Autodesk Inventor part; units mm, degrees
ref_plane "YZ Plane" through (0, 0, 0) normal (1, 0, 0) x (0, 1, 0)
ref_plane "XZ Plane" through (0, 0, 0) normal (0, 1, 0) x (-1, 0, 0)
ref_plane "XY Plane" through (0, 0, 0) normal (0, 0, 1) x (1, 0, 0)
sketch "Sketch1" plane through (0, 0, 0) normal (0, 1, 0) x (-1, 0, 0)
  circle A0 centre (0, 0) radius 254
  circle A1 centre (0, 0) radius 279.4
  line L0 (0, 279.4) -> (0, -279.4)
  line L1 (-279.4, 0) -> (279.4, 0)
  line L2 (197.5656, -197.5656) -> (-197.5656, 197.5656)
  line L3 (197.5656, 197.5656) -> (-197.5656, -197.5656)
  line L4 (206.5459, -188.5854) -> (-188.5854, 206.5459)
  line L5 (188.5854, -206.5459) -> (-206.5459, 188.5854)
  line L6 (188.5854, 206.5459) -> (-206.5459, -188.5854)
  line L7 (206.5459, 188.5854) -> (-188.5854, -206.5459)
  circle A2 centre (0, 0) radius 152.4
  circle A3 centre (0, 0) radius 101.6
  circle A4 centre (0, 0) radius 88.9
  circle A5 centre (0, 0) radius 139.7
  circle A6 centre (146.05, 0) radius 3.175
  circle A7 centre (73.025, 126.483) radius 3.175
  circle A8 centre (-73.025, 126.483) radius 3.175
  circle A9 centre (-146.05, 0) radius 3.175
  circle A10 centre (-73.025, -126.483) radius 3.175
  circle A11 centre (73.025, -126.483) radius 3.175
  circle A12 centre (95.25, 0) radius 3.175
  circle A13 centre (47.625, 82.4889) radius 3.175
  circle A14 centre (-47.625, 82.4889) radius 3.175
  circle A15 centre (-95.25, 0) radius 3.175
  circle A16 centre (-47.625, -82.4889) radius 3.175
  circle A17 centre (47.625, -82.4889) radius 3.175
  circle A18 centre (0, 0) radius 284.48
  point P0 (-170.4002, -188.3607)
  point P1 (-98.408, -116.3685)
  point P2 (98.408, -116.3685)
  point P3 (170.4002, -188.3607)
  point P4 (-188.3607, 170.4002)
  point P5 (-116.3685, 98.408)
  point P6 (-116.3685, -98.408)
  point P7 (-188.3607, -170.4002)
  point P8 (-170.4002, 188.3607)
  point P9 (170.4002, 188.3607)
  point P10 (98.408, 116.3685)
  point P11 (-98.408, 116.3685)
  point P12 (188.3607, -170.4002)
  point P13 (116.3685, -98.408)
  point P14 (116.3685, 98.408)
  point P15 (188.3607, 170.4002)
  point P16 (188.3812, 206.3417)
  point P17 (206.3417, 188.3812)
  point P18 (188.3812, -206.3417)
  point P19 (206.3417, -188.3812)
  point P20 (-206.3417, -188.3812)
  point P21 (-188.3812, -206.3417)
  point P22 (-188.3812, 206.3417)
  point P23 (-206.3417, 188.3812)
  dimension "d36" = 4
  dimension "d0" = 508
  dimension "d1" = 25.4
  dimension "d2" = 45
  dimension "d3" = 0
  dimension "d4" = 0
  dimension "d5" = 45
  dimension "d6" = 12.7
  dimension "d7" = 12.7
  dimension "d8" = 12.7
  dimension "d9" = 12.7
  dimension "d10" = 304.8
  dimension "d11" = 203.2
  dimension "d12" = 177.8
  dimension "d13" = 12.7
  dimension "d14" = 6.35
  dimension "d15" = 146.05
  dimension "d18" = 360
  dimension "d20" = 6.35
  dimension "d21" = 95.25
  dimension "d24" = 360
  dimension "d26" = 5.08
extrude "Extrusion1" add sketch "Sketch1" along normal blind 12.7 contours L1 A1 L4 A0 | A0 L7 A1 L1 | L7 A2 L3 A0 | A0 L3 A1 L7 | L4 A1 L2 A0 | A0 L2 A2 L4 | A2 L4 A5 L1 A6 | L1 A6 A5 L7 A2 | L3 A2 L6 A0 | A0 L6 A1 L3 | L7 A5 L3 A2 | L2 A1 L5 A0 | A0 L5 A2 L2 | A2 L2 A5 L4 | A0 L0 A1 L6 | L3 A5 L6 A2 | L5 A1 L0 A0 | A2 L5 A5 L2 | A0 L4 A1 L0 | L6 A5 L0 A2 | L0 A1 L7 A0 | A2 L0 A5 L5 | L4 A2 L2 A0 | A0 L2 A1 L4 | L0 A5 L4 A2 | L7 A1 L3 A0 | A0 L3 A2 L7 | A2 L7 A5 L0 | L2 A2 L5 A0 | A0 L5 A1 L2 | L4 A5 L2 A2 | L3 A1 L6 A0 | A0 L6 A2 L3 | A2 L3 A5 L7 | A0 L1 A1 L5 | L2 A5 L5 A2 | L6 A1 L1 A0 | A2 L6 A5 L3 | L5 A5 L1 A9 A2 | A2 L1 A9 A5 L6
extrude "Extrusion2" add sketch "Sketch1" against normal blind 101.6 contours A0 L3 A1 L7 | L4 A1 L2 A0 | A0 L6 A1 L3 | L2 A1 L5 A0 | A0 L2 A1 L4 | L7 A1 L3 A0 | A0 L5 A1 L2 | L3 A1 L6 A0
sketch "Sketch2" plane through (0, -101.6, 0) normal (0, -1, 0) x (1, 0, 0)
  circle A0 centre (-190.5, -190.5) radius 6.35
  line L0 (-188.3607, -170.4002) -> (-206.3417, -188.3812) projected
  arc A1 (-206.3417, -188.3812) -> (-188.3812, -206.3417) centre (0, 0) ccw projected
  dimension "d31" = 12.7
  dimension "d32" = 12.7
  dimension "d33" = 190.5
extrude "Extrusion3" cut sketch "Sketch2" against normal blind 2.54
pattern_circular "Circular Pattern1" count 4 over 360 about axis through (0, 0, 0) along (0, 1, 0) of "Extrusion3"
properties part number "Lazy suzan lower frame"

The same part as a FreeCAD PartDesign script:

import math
import FreeCAD as App
import Part
import Sketcher
from FreeCAD import Vector
Q = App.Units.Quantity

doc = App.newDocument("Part")
body = doc.addObject("PartDesign::Body", "Body")

sketch1 = body.newObject("Sketcher::SketchObject", "Sketch")
sketch1.AttachmentSupport = (doc.getObject("XZ_Plane"), [""])
sketch1.MapMode = "FlatFace"
sketch1.addGeometry(Part.Circle(Vector(0, 0, 0), Vector(0, 0, 1), 279.4), False)
sketch1.addGeometry(Part.LineSegment(Vector(-188.4, -170.4, 0), Vector(-116.4, -98.4, 0)), False)
sketch1.addGeometry(Part.ArcOfCircle(Part.Circle(Vector(0, 0, 0), Vector(0, 0, 1), 152.4), math.radians(140), math.radians(220)), False)
sketch1.addGeometry(Part.LineSegment(Vector(-116.4, 98.4, 0), Vector(-188.4, 170.4, 0)), False)
sketch1.addGeometry(Part.ArcOfCircle(Part.Circle(Vector(0, 0, 0), Vector(0, 0, 1), 254), math.radians(138), math.radians(222)), False)
sketch1.addGeometry(Part.LineSegment(Vector(-98.4, -116.4, 0), Vector(-170.4, -188.4, 0)), False)
sketch1.addGeometry(Part.ArcOfCircle(Part.Circle(Vector(0, 0, 0), Vector(0, 0, 1), 254), math.radians(-132), math.radians(-48)), False)
sketch1.addGeometry(Part.LineSegment(Vector(170.4, -188.4, 0), Vector(98.4, -116.4, 0)), False)
sketch1.addGeometry(Part.ArcOfCircle(Part.Circle(Vector(0, 0, 0), Vector(0, 0, 1), 152.4), math.radians(-130), math.radians(-50)), False)
sketch1.addGeometry(Part.Circle(Vector(0, 0, 0), Vector(0, 0, 1), 139.7), False)
sketch1.addGeometry(Part.LineSegment(Vector(-170.4, 188.4, 0), Vector(-98.4, 116.4, 0)), False)
sketch1.addGeometry(Part.ArcOfCircle(Part.Circle(Vector(0, 0, 0), Vector(0, 0, 1), 152.4), math.radians(50), math.radians(130)), False)
sketch1.addGeometry(Part.LineSegment(Vector(98.4, 116.4, 0), Vector(170.4, 188.4, 0)), False)
sketch1.addGeometry(Part.ArcOfCircle(Part.Circle(Vector(0, 0, 0), Vector(0, 0, 1), 254), math.radians(48), math.radians(132)), False)
sketch1.addGeometry(Part.Circle(Vector(-146.1, 0, 0), Vector(0, 0, 1), 3.2), False)
sketch1.addGeometry(Part.Circle(Vector(-73, -126.5, 0), Vector(0, 0, 1), 3.2), False)
sketch1.addGeometry(Part.Circle(Vector(-73, 126.5, 0), Vector(0, 0, 1), 3.2), False)
sketch1.addGeometry(Part.Circle(Vector(73, -126.5, 0), Vector(0, 0, 1), 3.2), False)
sketch1.addGeometry(Part.Circle(Vector(73, 126.5, 0), Vector(0, 0, 1), 3.2), False)
sketch1.addGeometry(Part.LineSegment(Vector(116.4, -98.4, 0), Vector(188.4, -170.4, 0)), False)
sketch1.addGeometry(Part.ArcOfCircle(Part.Circle(Vector(0, 0, 0), Vector(0, 0, 1), 254), math.radians(-42), math.radians(42)), False)
sketch1.addGeometry(Part.LineSegment(Vector(188.4, 170.4, 0), Vector(116.4, 98.4, 0)), False)
sketch1.addGeometry(Part.ArcOfCircle(Part.Circle(Vector(0, 0, 0), Vector(0, 0, 1), 152.4), math.radians(-40), math.radians(40)), False)
sketch1.addGeometry(Part.Circle(Vector(146.1, 0, 0), Vector(0, 0, 1), 3.2), False)
sketch1.addConstraint(Sketcher.Constraint("Coincident", 1, 2, 2, 2))
sketch1.addConstraint(Sketcher.Constraint("Coincident", 2, 1, 3, 1))
sketch1.addConstraint(Sketcher.Constraint("Coincident", 3, 2, 4, 1))
sketch1.addConstraint(Sketcher.Constraint("Coincident", 4, 2, 1, 1))
sketch1.addConstraint(Sketcher.Constraint("Coincident", 5, 2, 6, 1))
sketch1.addConstraint(Sketcher.Constraint("Coincident", 6, 2, 7, 1))
sketch1.addConstraint(Sketcher.Constraint("Coincident", 7, 2, 8, 2))
sketch1.addConstraint(Sketcher.Constraint("Coincident", 8, 1, 5, 1))
sketch1.addConstraint(Sketcher.Constraint("Coincident", 10, 2, 11, 2))
sketch1.addConstraint(Sketcher.Constraint("Coincident", 11, 1, 12, 1))
sketch1.addConstraint(Sketcher.Constraint("Coincident", 12, 2, 13, 1))
sketch1.addConstraint(Sketcher.Constraint("Coincident", 13, 2, 10, 1))
sketch1.addConstraint(Sketcher.Constraint("Coincident", 19, 2, 20, 1))
sketch1.addConstraint(Sketcher.Constraint("Coincident", 20, 2, 21, 1))
sketch1.addConstraint(Sketcher.Constraint("Coincident", 21, 2, 22, 2))
sketch1.addConstraint(Sketcher.Constraint("Coincident", 22, 1, 19, 1))
sketch1.addConstraint(Sketcher.Constraint("Coincident", 0, 3, -1, 1))
sketch1.addConstraint(Sketcher.Constraint("Coincident", 2, 3, -1, 1))
sketch1.addConstraint(Sketcher.Constraint("Coincident", 4, 3, -1, 1))
sketch1.addConstraint(Sketcher.Constraint("Coincident", 6, 3, -1, 1))
sketch1.addConstraint(Sketcher.Constraint("Coincident", 8, 3, -1, 1))
sketch1.addConstraint(Sketcher.Constraint("Coincident", 9, 3, -1, 1))
sketch1.addConstraint(Sketcher.Constraint("Coincident", 11, 3, -1, 1))
sketch1.addConstraint(Sketcher.Constraint("Coincident", 13, 3, -1, 1))
sketch1.addConstraint(Sketcher.Constraint("Coincident", 20, 3, -1, 1))
sketch1.addConstraint(Sketcher.Constraint("Coincident", 22, 3, -1, 1))
sketch1.addConstraint(Sketcher.Constraint("Equal", 4, 6))
sketch1.addConstraint(Sketcher.Constraint("Equal", 2, 8))
sketch1.addConstraint(Sketcher.Constraint("Equal", 8, 11))
sketch1.addConstraint(Sketcher.Constraint("Equal", 6, 13))
sketch1.addConstraint(Sketcher.Constraint("Equal", 14, 15))
sketch1.addConstraint(Sketcher.Constraint("Equal", 15, 16))
sketch1.addConstraint(Sketcher.Constraint("Equal", 16, 17))
sketch1.addConstraint(Sketcher.Constraint("Equal", 17, 18))
sketch1.addConstraint(Sketcher.Constraint("Equal", 13, 20))
sketch1.addConstraint(Sketcher.Constraint("Equal", 11, 22))
sketch1.addConstraint(Sketcher.Constraint("Equal", 18, 23))
sketch1.addConstraint(Sketcher.Constraint("Symmetric", 16, 3, 17, 3, -1, 1))
sketch1.addConstraint(Sketcher.Constraint("Symmetric", 15, 3, 18, 3, -1, 1))
sketch1.addConstraint(Sketcher.Constraint("Symmetric", 14, 3, 23, 3, -1, 1))
sketch1.addConstraint(Sketcher.Constraint("Symmetric", 15, 3, 17, 3, -2))
sketch1.addConstraint(Sketcher.Constraint("PointOnObject", 14, 3, -1))
sketch1.addConstraint(Sketcher.Constraint("Perpendicular", 1, 3))
sketch1.addConstraint(Sketcher.Constraint("Perpendicular", 3, 5))
sketch1.addConstraint(Sketcher.Constraint("Perpendicular", 5, 7))
sketch1.addConstraint(Sketcher.Constraint("Parallel", 7, 10))
sketch1.addConstraint(Sketcher.Constraint("Perpendicular", 10, 12))
sketch1.addConstraint(Sketcher.Constraint("Perpendicular", 12, 19))
sketch1.addConstraint(Sketcher.Constraint("Perpendicular", 19, 21))
sketch1.addConstraint(Sketcher.Constraint("Horizontal", 5, 2, 6, 2))
sketch1.addConstraint(Sketcher.Constraint("Horizontal", 7, 2, 8, 1))
sketch1.addConstraint(Sketcher.Constraint("Horizontal", 10, 2, 11, 1))
sketch1.addConstraint(Sketcher.Constraint("Horizontal", 4, 2, 19, 2))
sketch1.addConstraint(Sketcher.Constraint("Horizontal", 3, 2, 20, 2))
sketch1.addConstraint(Sketcher.Constraint("Vertical", 1, 2, 2, 1))
sketch1.addConstraint(Sketcher.Constraint("Vertical", 8, 1, 10, 2))
sketch1.addConstraint(Sketcher.Constraint("Equal", 3, 5))
sketch1.addConstraint(Sketcher.Constraint("Radius", 2, Q("6 in")))
sketch1.addConstraint(Sketcher.Constraint("Radius", 4, Q("10 in")))
sketch1.addConstraint(Sketcher.Constraint("Diameter", 14, Q("0.25 in")))
sketch1.addConstraint(Sketcher.Constraint("Diameter", 0, Q("22 in")))
sketch1.addConstraint(Sketcher.Constraint("Diameter", 9, Q("11 in")))
sketch1.addConstraint(Sketcher.Constraint("DistanceX", 14, 3, -1, 1, Q("5.75 in")))
sketch1.addConstraint(Sketcher.Constraint("DistanceX", 15, 3, -1, 1, Q("2.875 in")))
sketch1.addConstraint(Sketcher.Constraint("DistanceX", 4, 2, 5, 2, Q("0.7071 in")))
sketch1.addConstraint(Sketcher.Constraint("DistanceY", 17, 3, 7, 2, Q("0.3982 in")))
pad1 = body.newObject("PartDesign::Pad", "Pad")
pad1.Profile = sketch1
pad1.Length = Q("0.5 in")
pad1.Reversed = True

sketch2 = body.newObject("Sketcher::SketchObject", "Sketch001")
sketch2.AttachmentSupport = (doc.getObject("XZ_Plane"), [""])
sketch2.MapMode = "FlatFace"
sketch2.addGeometry(Part.LineSegment(Vector(-188, 170, 0), Vector(-206, 188, 0)), False)
sketch2.addGeometry(Part.ArcOfCircle(Part.Circle(Vector(0, 0, 0), Vector(0, 0, 1), 279), math.radians(132.39), math.radians(137.61)), False)
sketch2.addGeometry(Part.LineSegment(Vector(-188, 206, 0), Vector(-170, 188, 0)), False)
sketch2.addGeometry(Part.ArcOfCircle(Part.Circle(Vector(0, 0, 0), Vector(0, 0, 1), 254), math.radians(132.13), math.radians(137.87)), False)
sketch2.addGeometry(Part.LineSegment(Vector(-206, -188, 0), Vector(-188, -170, 0)), False)
sketch2.addGeometry(Part.ArcOfCircle(Part.Circle(Vector(0, 0, 0), Vector(0, 0, 1), 254), math.radians(-137.87), math.radians(-132.13)), False)
sketch2.addGeometry(Part.LineSegment(Vector(-170, -188, 0), Vector(-188, -206, 0)), False)
sketch2.addGeometry(Part.ArcOfCircle(Part.Circle(Vector(0, 0, 0), Vector(0, 0, 1), 279), math.radians(-137.61), math.radians(-132.39)), False)
sketch2.addGeometry(Part.LineSegment(Vector(170, 188, 0), Vector(188, 206, 0)), False)
sketch2.addGeometry(Part.ArcOfCircle(Part.Circle(Vector(0, 0, 0), Vector(0, 0, 1), 279), math.radians(42.39), math.radians(47.61)), False)
sketch2.addGeometry(Part.LineSegment(Vector(206, 188, 0), Vector(188, 170, 0)), False)
sketch2.addGeometry(Part.ArcOfCircle(Part.Circle(Vector(0, 0, 0), Vector(0, 0, 1), 254), math.radians(42.13), math.radians(47.87)), False)
sketch2.addGeometry(Part.LineSegment(Vector(188, -206, 0), Vector(170, -188, 0)), False)
sketch2.addGeometry(Part.ArcOfCircle(Part.Circle(Vector(0, 0, 0), Vector(0, 0, 1), 254), math.radians(-47.87), math.radians(-42.13)), False)
sketch2.addGeometry(Part.LineSegment(Vector(188, -170, 0), Vector(206, -188, 0)), False)
sketch2.addGeometry(Part.ArcOfCircle(Part.Circle(Vector(0, 0, 0), Vector(0, 0, 1), 279), math.radians(-47.61), math.radians(-42.39)), False)
sketch2.addConstraint(Sketcher.Constraint("Coincident", 0, 2, 1, 2))
sketch2.addConstraint(Sketcher.Constraint("Coincident", 1, 1, 2, 1))
sketch2.addConstraint(Sketcher.Constraint("Coincident", 2, 2, 3, 1))
sketch2.addConstraint(Sketcher.Constraint("Coincident", 3, 2, 0, 1))
sketch2.addConstraint(Sketcher.Constraint("Coincident", 4, 2, 5, 1))
sketch2.addConstraint(Sketcher.Constraint("Coincident", 5, 2, 6, 1))
sketch2.addConstraint(Sketcher.Constraint("Coincident", 6, 2, 7, 2))
sketch2.addConstraint(Sketcher.Constraint("Coincident", 7, 1, 4, 1))
sketch2.addConstraint(Sketcher.Constraint("Coincident", 8, 2, 9, 2))
sketch2.addConstraint(Sketcher.Constraint("Coincident", 9, 1, 10, 1))
sketch2.addConstraint(Sketcher.Constraint("Coincident", 10, 2, 11, 1))
sketch2.addConstraint(Sketcher.Constraint("Coincident", 11, 2, 8, 1))
sketch2.addConstraint(Sketcher.Constraint("Coincident", 12, 2, 13, 1))
sketch2.addConstraint(Sketcher.Constraint("Coincident", 13, 2, 14, 1))
sketch2.addConstraint(Sketcher.Constraint("Coincident", 14, 2, 15, 2))
sketch2.addConstraint(Sketcher.Constraint("Coincident", 15, 1, 12, 1))
sketch2.addConstraint(Sketcher.Constraint("Coincident", 1, 3, -1, 1))
sketch2.addConstraint(Sketcher.Constraint("Coincident", 3, 3, -1, 1))
sketch2.addConstraint(Sketcher.Constraint("Coincident", 5, 3, -1, 1))
sketch2.addConstraint(Sketcher.Constraint("Coincident", 7, 3, -1, 1))
sketch2.addConstraint(Sketcher.Constraint("Coincident", 9, 3, -1, 1))
sketch2.addConstraint(Sketcher.Constraint("Coincident", 11, 3, -1, 1))
sketch2.addConstraint(Sketcher.Constraint("Coincident", 13, 3, -1, 1))
sketch2.addConstraint(Sketcher.Constraint("Coincident", 15, 3, -1, 1))
sketch2.addConstraint(Sketcher.Constraint("Equal", 3, 5))
sketch2.addConstraint(Sketcher.Constraint("Equal", 1, 7))
sketch2.addConstraint(Sketcher.Constraint("Equal", 7, 9))
sketch2.addConstraint(Sketcher.Constraint("Equal", 5, 11))
sketch2.addConstraint(Sketcher.Constraint("Equal", 11, 13))
sketch2.addConstraint(Sketcher.Constraint("Equal", 9, 15))
sketch2.addConstraint(Sketcher.Constraint("Parallel", 0, 2))
sketch2.addConstraint(Sketcher.Constraint("Perpendicular", 2, 4))
sketch2.addConstraint(Sketcher.Constraint("Parallel", 4, 6))
sketch2.addConstraint(Sketcher.Constraint("Parallel", 6, 8))
sketch2.addConstraint(Sketcher.Constraint("Parallel", 8, 10))
sketch2.addConstraint(Sketcher.Constraint("Perpendicular", 10, 12))
sketch2.addConstraint(Sketcher.Constraint("Parallel", 12, 14))
sketch2.addConstraint(Sketcher.Constraint("Horizontal", 1, 1, 8, 2))
sketch2.addConstraint(Sketcher.Constraint("Horizontal", 0, 2, 9, 1))
sketch2.addConstraint(Sketcher.Constraint("Horizontal", 3, 2, 10, 2))
sketch2.addConstraint(Sketcher.Constraint("Horizontal", 5, 2, 12, 2))
sketch2.addConstraint(Sketcher.Constraint("Horizontal", 4, 2, 13, 2))
sketch2.addConstraint(Sketcher.Constraint("Vertical", 3, 2, 4, 2))
sketch2.addConstraint(Sketcher.Constraint("Vertical", 2, 2, 5, 2))
sketch2.addConstraint(Sketcher.Constraint("Radius", 3, Q("10 in")))
sketch2.addConstraint(Sketcher.Constraint("Radius", 1, Q("11 in")))
sketch2.addConstraint(Sketcher.Constraint("DistanceX", 0, 2, -1, 1, Q("8.1237 in")))
sketch2.addConstraint(Sketcher.Constraint("DistanceY", 6, 2, -1, 1, Q("8.1237 in")))
pad2 = body.newObject("PartDesign::Pad", "Pad001")
pad2.Profile = sketch2
pad2.Length = Q("4 in")

sketch3 = body.newObject("Sketcher::SketchObject", "Sketch002")
sketch3.AttachmentSupport = (doc.getObject("XZ_Plane"), [""])
sketch3.MapMode = "FlatFace"
sketch3.AttachmentOffset = App.Placement(Vector(0, 0, 4 * 25.4), App.Rotation())
sketch3.addGeometry(Part.Circle(Vector(-190, -190, 0), Vector(0, 0, 1), 6), False)
sketch3.addConstraint(Sketcher.Constraint("Diameter", 0, Q("0.5 in")))
sketch3.addConstraint(Sketcher.Constraint("DistanceX", 0, 3, -1, 1, Q("7.5 in")))
sketch3.addConstraint(Sketcher.Constraint("DistanceY", 0, 3, -1, 1, Q("7.5 in")))
pocket1 = body.newObject("PartDesign::Pocket", "Pocket")
pocket1.Profile = sketch3
pocket1.Length = Q("0.1 in")
doc.recompute()

polarpattern = body.newObject("PartDesign::PolarPattern", "PolarPattern")
polarpattern.Originals = [pocket1]
polarpattern.Axis = (doc.getObject("Y_Axis"), [""])
polarpattern.Angle = 360
polarpattern.Occurrences = 4
body.Tip = polarpattern

doc.recompute()
